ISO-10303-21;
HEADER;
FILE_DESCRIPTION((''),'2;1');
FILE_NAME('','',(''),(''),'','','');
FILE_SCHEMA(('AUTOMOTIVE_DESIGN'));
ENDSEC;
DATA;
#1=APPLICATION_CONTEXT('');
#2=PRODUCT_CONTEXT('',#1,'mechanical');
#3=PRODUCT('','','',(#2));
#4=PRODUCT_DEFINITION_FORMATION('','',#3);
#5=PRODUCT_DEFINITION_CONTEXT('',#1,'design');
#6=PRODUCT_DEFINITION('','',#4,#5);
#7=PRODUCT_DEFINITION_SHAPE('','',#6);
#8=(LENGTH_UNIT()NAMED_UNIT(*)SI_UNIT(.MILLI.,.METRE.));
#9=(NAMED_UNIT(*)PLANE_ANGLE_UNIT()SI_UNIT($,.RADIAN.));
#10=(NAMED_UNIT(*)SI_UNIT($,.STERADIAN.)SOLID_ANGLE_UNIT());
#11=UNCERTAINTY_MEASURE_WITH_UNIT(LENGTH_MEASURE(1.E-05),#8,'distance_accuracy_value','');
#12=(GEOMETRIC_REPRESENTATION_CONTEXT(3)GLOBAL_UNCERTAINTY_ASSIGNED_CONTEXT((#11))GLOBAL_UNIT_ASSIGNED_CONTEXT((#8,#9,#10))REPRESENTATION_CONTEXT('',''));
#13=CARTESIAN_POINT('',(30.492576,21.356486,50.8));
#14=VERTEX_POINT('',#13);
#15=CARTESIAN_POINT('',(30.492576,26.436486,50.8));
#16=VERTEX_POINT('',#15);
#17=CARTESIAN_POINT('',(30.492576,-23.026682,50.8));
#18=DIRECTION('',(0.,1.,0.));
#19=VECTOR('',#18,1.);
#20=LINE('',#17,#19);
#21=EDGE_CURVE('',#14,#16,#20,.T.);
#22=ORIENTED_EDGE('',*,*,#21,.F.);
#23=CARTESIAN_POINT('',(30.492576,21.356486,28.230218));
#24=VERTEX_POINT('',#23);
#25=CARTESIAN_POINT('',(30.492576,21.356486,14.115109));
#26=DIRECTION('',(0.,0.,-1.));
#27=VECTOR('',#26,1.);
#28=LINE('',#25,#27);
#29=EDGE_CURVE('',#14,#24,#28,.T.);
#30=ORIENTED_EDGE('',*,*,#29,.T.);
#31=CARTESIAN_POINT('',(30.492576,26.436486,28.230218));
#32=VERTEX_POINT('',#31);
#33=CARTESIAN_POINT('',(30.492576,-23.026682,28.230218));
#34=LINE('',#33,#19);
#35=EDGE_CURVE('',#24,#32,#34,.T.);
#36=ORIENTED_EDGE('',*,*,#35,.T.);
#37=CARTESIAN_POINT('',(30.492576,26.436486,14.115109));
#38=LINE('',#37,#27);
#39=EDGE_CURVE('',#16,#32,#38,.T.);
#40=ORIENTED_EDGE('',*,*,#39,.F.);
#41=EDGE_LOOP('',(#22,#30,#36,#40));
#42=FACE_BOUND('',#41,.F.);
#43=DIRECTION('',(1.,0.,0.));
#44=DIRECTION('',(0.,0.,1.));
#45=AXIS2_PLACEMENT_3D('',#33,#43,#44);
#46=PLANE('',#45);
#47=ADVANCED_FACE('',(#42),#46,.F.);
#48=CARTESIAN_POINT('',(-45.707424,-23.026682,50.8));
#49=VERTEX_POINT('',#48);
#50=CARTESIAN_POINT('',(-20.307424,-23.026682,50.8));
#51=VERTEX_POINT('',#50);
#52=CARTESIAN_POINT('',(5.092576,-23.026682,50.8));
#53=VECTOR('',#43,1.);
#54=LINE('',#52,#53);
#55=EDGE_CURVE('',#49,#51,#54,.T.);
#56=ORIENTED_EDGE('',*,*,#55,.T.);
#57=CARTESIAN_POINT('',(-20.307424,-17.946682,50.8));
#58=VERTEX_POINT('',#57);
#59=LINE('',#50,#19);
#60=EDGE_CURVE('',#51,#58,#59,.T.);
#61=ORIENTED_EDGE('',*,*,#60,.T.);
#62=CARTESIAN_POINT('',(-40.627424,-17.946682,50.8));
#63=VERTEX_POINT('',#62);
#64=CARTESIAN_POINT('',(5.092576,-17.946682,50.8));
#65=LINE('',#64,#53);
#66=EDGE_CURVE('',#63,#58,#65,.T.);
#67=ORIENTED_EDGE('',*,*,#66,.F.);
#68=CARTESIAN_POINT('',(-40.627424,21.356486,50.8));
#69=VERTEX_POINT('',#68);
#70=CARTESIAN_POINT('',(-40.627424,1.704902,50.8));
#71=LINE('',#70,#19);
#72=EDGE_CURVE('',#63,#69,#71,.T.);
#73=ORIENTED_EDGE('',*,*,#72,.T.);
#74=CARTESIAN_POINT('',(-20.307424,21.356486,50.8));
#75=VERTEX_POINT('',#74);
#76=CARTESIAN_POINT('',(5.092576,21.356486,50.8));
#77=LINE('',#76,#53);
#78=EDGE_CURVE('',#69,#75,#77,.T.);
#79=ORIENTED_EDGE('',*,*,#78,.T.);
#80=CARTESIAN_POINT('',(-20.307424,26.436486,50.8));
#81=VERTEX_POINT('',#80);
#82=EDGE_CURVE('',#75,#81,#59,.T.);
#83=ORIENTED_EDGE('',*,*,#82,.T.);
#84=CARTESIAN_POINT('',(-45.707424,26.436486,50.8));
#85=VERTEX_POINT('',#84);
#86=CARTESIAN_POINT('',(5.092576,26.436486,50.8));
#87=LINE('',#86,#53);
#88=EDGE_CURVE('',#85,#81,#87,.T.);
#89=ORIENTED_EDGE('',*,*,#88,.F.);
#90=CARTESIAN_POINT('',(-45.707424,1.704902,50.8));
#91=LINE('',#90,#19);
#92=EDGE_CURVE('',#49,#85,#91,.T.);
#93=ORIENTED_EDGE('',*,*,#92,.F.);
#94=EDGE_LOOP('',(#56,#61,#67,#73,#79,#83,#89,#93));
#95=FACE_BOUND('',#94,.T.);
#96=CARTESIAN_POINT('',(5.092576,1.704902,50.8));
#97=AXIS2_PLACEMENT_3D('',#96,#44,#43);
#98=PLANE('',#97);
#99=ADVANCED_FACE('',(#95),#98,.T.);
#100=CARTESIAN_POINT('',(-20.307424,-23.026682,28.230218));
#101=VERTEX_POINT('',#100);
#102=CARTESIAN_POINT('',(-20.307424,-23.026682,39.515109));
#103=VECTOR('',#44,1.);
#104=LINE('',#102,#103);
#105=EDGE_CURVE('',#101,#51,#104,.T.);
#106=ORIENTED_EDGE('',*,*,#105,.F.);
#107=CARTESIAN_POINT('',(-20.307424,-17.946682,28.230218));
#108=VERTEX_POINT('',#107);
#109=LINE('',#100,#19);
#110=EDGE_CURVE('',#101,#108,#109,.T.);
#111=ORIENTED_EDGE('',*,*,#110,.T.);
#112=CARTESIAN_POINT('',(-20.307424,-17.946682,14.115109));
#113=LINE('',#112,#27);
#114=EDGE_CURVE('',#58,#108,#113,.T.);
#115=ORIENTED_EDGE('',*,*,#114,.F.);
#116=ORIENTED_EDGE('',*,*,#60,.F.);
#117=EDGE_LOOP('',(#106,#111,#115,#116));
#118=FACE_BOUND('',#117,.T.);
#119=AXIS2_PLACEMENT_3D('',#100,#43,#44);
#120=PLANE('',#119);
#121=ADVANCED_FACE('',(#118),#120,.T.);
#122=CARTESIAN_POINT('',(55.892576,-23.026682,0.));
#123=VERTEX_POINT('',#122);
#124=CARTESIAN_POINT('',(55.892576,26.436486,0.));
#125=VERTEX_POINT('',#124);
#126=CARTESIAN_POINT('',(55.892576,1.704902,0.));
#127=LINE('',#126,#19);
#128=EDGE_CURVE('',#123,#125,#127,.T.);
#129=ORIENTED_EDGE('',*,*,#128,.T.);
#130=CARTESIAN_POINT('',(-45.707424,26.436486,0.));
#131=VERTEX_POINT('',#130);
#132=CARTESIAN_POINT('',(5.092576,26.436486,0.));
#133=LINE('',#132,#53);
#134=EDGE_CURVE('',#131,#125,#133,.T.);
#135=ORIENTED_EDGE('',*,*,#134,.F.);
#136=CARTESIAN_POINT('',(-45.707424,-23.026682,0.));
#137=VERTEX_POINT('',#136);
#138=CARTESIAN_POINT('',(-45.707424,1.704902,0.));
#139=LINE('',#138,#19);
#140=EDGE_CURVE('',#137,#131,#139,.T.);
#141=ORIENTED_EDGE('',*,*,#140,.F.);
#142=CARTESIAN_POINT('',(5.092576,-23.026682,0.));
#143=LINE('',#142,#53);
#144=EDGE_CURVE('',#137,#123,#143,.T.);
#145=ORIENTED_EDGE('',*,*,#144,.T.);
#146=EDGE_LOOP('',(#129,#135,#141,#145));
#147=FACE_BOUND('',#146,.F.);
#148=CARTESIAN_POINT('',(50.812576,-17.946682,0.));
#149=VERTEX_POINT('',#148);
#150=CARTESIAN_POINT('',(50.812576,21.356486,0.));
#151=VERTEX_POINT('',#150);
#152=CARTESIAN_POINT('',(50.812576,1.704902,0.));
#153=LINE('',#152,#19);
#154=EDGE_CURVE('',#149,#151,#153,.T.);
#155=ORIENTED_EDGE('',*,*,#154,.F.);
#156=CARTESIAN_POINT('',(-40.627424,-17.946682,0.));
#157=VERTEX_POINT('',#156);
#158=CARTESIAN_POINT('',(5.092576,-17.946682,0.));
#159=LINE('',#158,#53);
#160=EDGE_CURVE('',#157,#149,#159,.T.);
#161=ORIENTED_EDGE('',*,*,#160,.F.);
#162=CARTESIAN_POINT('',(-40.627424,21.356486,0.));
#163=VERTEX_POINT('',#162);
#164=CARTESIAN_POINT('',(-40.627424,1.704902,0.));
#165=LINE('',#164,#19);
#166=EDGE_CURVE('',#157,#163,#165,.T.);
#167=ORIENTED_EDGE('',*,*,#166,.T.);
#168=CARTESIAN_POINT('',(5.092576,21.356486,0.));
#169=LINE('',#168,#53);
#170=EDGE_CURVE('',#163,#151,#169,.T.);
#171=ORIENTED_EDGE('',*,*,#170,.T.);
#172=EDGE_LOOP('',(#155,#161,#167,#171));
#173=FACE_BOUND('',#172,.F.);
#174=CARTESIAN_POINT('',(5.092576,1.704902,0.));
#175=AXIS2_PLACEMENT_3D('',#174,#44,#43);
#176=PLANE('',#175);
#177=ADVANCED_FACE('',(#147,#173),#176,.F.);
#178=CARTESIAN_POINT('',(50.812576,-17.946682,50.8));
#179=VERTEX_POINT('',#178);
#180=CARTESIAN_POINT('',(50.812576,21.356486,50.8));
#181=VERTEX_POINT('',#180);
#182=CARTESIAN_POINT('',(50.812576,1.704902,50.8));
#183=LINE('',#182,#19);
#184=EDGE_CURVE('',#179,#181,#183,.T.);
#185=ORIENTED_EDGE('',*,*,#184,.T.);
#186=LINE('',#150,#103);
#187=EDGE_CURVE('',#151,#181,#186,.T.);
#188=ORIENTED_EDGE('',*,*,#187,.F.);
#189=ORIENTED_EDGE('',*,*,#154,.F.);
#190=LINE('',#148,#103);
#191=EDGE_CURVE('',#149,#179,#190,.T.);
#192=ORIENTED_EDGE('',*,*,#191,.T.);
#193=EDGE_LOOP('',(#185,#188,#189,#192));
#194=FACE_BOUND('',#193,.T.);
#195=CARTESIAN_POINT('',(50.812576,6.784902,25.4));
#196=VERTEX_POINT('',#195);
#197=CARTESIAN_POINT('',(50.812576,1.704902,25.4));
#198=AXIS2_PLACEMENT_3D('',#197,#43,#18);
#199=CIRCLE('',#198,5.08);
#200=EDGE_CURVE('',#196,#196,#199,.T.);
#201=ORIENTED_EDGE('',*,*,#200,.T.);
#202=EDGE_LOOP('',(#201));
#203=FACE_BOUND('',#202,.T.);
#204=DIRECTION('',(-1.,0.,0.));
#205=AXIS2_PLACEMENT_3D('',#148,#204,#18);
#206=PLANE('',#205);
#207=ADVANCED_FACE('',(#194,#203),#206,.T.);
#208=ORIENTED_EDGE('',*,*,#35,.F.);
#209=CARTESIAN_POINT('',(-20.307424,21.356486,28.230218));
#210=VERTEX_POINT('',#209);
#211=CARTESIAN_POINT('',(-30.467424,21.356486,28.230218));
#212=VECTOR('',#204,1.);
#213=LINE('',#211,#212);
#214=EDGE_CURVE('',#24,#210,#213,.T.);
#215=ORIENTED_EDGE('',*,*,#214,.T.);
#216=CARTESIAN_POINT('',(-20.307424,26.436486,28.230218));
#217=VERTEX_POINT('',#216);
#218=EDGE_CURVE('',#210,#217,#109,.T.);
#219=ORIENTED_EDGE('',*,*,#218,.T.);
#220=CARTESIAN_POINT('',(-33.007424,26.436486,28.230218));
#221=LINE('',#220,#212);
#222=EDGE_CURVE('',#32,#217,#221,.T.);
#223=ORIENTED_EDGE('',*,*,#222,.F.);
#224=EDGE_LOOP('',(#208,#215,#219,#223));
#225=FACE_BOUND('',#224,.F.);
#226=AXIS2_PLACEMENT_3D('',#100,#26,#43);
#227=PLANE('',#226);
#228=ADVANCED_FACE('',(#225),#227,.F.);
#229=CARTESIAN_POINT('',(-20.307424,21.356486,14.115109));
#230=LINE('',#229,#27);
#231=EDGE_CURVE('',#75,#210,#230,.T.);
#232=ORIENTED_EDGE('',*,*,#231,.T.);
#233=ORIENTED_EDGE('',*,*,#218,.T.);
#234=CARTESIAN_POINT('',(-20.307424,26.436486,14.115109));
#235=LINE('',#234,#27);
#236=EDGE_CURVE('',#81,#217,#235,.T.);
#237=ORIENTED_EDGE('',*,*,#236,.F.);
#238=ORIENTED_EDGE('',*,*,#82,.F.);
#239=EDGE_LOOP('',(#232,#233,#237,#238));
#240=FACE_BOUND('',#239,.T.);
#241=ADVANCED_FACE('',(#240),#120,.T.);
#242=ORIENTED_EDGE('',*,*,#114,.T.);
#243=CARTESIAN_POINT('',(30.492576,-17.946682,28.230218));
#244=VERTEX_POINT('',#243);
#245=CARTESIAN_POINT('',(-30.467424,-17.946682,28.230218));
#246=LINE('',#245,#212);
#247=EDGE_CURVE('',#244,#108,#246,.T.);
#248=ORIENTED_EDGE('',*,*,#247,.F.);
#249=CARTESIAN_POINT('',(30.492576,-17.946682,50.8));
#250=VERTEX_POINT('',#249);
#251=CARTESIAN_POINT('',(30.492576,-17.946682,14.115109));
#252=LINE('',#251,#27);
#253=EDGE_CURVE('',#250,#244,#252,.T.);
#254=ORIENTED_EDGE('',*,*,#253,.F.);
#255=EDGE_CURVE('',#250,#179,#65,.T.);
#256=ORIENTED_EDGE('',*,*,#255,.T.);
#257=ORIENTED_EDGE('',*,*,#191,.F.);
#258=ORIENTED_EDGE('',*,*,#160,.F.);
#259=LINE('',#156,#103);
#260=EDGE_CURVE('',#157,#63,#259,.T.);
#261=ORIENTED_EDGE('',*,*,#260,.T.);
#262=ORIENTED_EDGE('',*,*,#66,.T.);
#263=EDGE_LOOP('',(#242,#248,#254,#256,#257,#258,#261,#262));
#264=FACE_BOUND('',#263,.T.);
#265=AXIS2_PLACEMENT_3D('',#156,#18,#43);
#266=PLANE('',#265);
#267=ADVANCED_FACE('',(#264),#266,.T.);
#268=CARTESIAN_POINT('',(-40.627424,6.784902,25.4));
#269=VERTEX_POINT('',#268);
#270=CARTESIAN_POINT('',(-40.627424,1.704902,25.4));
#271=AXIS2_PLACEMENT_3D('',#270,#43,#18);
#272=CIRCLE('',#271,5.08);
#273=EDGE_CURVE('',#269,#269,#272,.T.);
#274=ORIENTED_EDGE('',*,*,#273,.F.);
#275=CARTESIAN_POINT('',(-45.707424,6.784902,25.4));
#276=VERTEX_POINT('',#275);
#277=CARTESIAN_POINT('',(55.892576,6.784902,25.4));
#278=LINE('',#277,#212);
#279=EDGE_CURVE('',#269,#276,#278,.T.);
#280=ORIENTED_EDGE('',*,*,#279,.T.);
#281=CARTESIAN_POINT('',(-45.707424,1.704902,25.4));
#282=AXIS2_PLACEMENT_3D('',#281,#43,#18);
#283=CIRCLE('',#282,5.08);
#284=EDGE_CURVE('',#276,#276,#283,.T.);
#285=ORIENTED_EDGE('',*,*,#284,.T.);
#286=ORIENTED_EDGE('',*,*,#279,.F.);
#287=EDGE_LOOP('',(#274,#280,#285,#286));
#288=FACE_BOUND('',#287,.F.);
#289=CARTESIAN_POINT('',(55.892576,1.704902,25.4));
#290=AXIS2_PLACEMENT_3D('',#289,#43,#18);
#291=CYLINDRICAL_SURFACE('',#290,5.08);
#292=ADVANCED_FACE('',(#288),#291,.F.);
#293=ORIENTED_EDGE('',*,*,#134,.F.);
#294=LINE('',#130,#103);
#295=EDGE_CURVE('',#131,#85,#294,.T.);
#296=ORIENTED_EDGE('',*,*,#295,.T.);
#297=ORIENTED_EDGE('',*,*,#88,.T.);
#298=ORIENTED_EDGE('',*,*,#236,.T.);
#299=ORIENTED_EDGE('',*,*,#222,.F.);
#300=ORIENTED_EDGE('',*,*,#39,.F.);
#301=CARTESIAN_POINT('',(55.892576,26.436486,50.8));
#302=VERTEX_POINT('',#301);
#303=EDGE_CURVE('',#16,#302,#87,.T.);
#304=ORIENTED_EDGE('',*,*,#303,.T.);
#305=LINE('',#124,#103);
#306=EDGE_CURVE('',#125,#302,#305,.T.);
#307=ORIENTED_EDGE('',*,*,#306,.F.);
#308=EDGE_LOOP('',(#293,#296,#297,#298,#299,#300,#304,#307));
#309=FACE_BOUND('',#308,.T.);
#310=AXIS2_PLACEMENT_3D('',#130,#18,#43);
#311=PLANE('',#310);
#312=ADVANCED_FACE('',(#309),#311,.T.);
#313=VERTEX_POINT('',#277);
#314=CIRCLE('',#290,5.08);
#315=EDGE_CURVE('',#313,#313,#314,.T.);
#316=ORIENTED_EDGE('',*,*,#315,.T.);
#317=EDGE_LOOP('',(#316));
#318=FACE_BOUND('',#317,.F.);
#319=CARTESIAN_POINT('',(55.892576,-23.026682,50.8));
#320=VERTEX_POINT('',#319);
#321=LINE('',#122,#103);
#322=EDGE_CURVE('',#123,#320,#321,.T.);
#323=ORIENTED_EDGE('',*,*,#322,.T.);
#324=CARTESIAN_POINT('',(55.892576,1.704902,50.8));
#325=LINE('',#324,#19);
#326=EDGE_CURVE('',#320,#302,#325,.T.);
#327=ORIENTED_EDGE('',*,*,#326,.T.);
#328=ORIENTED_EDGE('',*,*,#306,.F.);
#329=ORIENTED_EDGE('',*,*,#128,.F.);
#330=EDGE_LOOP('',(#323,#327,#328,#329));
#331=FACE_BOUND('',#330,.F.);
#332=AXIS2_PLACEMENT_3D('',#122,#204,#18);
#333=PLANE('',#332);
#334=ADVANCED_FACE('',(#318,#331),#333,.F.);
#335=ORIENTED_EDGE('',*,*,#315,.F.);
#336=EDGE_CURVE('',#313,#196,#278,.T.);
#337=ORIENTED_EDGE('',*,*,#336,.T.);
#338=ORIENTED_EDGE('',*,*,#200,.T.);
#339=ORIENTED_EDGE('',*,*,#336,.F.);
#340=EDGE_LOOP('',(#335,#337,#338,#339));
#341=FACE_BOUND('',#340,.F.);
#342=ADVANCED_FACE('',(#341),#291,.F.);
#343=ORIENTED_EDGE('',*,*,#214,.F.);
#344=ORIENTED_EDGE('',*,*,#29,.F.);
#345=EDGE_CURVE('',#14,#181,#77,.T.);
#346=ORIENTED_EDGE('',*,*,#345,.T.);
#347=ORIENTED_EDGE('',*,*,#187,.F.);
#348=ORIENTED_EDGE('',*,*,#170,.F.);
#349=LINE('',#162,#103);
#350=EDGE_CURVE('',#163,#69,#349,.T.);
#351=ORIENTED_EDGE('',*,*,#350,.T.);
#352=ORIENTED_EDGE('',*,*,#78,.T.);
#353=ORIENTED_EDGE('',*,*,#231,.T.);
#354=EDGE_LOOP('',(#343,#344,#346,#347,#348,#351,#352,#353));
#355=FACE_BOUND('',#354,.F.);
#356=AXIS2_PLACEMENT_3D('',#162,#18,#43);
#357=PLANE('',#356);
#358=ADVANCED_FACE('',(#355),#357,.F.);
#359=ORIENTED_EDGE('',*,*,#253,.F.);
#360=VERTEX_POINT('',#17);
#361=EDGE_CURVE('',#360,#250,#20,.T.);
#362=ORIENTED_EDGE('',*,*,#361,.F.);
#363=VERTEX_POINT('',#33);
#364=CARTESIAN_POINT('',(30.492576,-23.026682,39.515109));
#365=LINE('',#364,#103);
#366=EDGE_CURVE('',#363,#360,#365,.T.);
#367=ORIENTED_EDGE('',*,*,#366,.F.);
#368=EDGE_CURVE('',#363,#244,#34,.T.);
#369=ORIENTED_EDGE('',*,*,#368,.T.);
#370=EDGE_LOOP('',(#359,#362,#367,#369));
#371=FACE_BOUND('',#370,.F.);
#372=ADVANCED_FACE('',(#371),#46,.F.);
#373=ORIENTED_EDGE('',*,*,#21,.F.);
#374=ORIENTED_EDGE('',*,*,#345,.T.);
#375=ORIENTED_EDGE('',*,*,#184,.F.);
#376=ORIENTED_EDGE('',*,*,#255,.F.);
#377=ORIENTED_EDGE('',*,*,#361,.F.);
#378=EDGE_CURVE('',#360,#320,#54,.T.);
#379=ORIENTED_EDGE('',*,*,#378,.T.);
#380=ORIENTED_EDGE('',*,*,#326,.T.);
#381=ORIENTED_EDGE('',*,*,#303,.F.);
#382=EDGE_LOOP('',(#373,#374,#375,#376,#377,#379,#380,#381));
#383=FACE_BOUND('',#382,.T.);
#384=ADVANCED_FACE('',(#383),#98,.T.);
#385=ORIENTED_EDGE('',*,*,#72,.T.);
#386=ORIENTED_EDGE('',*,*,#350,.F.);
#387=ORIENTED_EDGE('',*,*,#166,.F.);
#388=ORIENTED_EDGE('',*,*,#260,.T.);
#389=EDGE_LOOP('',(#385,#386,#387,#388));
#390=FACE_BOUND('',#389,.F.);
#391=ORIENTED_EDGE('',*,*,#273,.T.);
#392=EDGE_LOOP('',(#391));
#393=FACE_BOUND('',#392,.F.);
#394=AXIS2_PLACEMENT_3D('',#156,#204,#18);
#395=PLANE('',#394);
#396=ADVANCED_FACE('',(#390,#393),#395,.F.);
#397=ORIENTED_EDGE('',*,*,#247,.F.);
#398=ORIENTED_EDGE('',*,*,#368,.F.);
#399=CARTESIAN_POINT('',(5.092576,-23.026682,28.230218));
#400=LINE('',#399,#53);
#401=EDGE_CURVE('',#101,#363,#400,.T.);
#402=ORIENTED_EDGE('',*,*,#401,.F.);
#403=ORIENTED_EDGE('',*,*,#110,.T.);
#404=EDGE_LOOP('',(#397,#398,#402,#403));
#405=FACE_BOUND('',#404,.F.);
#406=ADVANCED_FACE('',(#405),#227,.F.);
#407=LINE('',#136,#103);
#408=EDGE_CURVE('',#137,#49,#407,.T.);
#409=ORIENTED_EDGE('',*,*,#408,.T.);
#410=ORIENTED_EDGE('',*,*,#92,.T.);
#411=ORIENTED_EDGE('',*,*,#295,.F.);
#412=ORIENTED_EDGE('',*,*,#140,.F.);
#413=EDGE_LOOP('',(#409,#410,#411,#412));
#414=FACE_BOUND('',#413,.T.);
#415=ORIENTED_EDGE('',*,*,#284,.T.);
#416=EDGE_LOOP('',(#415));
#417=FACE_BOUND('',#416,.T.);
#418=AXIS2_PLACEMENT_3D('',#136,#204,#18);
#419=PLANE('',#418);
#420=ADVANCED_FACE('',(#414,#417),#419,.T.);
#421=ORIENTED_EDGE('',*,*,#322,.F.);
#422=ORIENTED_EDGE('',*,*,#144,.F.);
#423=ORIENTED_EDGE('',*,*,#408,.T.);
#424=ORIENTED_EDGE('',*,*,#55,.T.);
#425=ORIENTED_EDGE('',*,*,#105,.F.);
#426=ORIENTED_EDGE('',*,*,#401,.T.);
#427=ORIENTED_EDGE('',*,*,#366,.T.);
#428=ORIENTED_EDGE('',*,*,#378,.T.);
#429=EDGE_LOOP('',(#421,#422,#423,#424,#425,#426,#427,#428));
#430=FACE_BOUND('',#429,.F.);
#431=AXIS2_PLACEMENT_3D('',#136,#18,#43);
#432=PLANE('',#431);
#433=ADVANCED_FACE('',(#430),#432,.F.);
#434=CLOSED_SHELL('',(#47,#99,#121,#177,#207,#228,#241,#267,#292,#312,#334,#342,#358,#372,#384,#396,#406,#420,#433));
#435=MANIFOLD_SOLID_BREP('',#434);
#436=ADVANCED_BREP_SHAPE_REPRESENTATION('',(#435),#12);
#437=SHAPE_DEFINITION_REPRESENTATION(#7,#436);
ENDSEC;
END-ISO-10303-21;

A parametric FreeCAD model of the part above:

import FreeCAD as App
import Part
import Sketcher
from FreeCAD import Vector
Q = App.Units.Quantity

doc = App.newDocument("Part")
body = doc.addObject("PartDesign::Body", "Body")

sketch1 = body.newObject("Sketcher::SketchObject", "Sketch")
sketch1.AttachmentSupport = (doc.getObject("XY_Plane"), [""])
sketch1.MapMode = "FlatFace"
sketch1.addGeometry(Part.LineSegment(Vector(-46, 26, 0), Vector(-46, -23, 0)), False)
sketch1.addGeometry(Part.LineSegment(Vector(-46, -23, 0), Vector(56, -23, 0)), False)
sketch1.addGeometry(Part.LineSegment(Vector(56, -23, 0), Vector(56, 26, 0)), False)
sketch1.addGeometry(Part.LineSegment(Vector(56, 26, 0), Vector(-46, 26, 0)), False)
sketch1.addGeometry(Part.LineSegment(Vector(51, -18, 0), Vector(-41, -18, 0)), False)
sketch1.addGeometry(Part.LineSegment(Vector(-41, -18, 0), Vector(-41, 21, 0)), False)
sketch1.addGeometry(Part.LineSegment(Vector(-41, 21, 0), Vector(51, 21, 0)), False)
sketch1.addGeometry(Part.LineSegment(Vector(51, 21, 0), Vector(51, -18, 0)), False)
sketch1.addConstraint(Sketcher.Constraint("Coincident", 0, 2, 1, 1))
sketch1.addConstraint(Sketcher.Constraint("Coincident", 1, 2, 2, 1))
sketch1.addConstraint(Sketcher.Constraint("Coincident", 2, 2, 3, 1))
sketch1.addConstraint(Sketcher.Constraint("Coincident", 3, 2, 0, 1))
sketch1.addConstraint(Sketcher.Constraint("Coincident", 4, 2, 5, 1))
sketch1.addConstraint(Sketcher.Constraint("Coincident", 5, 2, 6, 1))
sketch1.addConstraint(Sketcher.Constraint("Coincident", 6, 2, 7, 1))
sketch1.addConstraint(Sketcher.Constraint("Coincident", 7, 2, 4, 1))
sketch1.addConstraint(Sketcher.Constraint("Vertical", 0))
sketch1.addConstraint(Sketcher.Constraint("Horizontal", 1))
sketch1.addConstraint(Sketcher.Constraint("Vertical", 2))
sketch1.addConstraint(Sketcher.Constraint("Horizontal", 3))
sketch1.addConstraint(Sketcher.Constraint("Horizontal", 4))
sketch1.addConstraint(Sketcher.Constraint("Vertical", 5))
sketch1.addConstraint(Sketcher.Constraint("Horizontal", 6))
sketch1.addConstraint(Sketcher.Constraint("Vertical", 7))
sketch1.addConstraint(Sketcher.Constraint("DistanceX", 1, 1, 1, 2, Q("4 in")))
sketch1.addConstraint(Sketcher.Constraint("DistanceX", 4, 2, 4, 1, Q("3.6 in")))
sketch1.addConstraint(Sketcher.Constraint("DistanceX", 0, 2, 4, 2, Q("0.2 in")))
sketch1.addConstraint(Sketcher.Constraint("DistanceY", 0, 2, 4, 2, Q("0.2 in")))
sketch1.addConstraint(Sketcher.Constraint("DistanceY", 5, 2, 3, 2, Q("0.2 in")))
sketch1.addConstraint(Sketcher.Constraint("DistanceY", 0, 2, 0, 1, 49.463168))
sketch1.addConstraint(Sketcher.Constraint("DistanceY", 4, 2, -1, 1, 17.946682))
sketch1.addConstraint(Sketcher.Constraint("DistanceX", 0, 2, -1, 1, 45.707424))
pad1 = body.newObject("PartDesign::Pad", "Pad")
pad1.Profile = sketch1
pad1.Length = Q("2 in")

sketch2 = body.newObject("Sketcher::SketchObject", "Sketch001")
sketch2.AttachmentSupport = (doc.getObject("YZ_Plane"), [""])
sketch2.MapMode = "FlatFace"
sketch2.AttachmentOffset = App.Placement(Vector(0, 0, 55.892576), App.Rotation())
sketch2.addGeometry(Part.Circle(Vector(2, 25, 0), Vector(0, 0, 1), 5), False)
sketch2.addConstraint(Sketcher.Constraint("Diameter", 0, Q("0.4 in")))
sketch2.addConstraint(Sketcher.Constraint("DistanceY", -1, 1, 0, 3, Q("1 in")))
sketch2.addConstraint(Sketcher.Constraint("DistanceX", -1, 1, 0, 3, 1.704902))
pocket1 = body.newObject("PartDesign::Pocket", "Pocket")
pocket1.Profile = sketch2
pocket1.Length = Q("4.5 in")

sketch3 = body.newObject("Sketcher::SketchObject", "Sketch002")
sketch3.AttachmentSupport = (doc.getObject("XZ_Plane"), [""])
sketch3.MapMode = "FlatFace"
sketch3.AttachmentOffset = App.Placement(Vector(0, 0, 23.026682), App.Rotation())
sketch3.addGeometry(Part.LineSegment(Vector(-20, 51, 0), Vector(-20, 28, 0)), False)
sketch3.addGeometry(Part.LineSegment(Vector(-20, 28, 0), Vector(30, 28, 0)), False)
sketch3.addGeometry(Part.LineSegment(Vector(30, 28, 0), Vector(30, 51, 0)), False)
sketch3.addGeometry(Part.LineSegment(Vector(30, 51, 0), Vector(-20, 51, 0)), False)
sketch3.addConstraint(Sketcher.Constraint("Coincident", 0, 2, 1, 1))
sketch3.addConstraint(Sketcher.Constraint("Coincident", 1, 2, 2, 1))
sketch3.addConstraint(Sketcher.Constraint("Coincident", 2, 2, 3, 1))
sketch3.addConstraint(Sketcher.Constraint("Coincident", 3, 2, 0, 1))
sketch3.addConstraint(Sketcher.Constraint("Vertical", 0))
sketch3.addConstraint(Sketcher.Constraint("Horizontal", 1))
sketch3.addConstraint(Sketcher.Constraint("Vertical", 2))
sketch3.addConstraint(Sketcher.Constraint("Horizontal", 3))
sketch3.addConstraint(Sketcher.Constraint("DistanceX", 1, 1, 1, 2, Q("2 in")))
sketch3.addConstraint(Sketcher.Constraint("DistanceY", -1, 1, 2, 2, Q("2 in")))
sketch3.addConstraint(Sketcher.Constraint("DistanceY", 0, 2, 0, 1, 22.569782))
sketch3.addConstraint(Sketcher.Constraint("DistanceX", 0, 2, -1, 1, 20.307424))
pocket2 = body.newObject("PartDesign::Pocket", "Pocket001")
pocket2.Profile = sketch3
pocket2.Length = Q("2.5 in")

doc.recompute()
